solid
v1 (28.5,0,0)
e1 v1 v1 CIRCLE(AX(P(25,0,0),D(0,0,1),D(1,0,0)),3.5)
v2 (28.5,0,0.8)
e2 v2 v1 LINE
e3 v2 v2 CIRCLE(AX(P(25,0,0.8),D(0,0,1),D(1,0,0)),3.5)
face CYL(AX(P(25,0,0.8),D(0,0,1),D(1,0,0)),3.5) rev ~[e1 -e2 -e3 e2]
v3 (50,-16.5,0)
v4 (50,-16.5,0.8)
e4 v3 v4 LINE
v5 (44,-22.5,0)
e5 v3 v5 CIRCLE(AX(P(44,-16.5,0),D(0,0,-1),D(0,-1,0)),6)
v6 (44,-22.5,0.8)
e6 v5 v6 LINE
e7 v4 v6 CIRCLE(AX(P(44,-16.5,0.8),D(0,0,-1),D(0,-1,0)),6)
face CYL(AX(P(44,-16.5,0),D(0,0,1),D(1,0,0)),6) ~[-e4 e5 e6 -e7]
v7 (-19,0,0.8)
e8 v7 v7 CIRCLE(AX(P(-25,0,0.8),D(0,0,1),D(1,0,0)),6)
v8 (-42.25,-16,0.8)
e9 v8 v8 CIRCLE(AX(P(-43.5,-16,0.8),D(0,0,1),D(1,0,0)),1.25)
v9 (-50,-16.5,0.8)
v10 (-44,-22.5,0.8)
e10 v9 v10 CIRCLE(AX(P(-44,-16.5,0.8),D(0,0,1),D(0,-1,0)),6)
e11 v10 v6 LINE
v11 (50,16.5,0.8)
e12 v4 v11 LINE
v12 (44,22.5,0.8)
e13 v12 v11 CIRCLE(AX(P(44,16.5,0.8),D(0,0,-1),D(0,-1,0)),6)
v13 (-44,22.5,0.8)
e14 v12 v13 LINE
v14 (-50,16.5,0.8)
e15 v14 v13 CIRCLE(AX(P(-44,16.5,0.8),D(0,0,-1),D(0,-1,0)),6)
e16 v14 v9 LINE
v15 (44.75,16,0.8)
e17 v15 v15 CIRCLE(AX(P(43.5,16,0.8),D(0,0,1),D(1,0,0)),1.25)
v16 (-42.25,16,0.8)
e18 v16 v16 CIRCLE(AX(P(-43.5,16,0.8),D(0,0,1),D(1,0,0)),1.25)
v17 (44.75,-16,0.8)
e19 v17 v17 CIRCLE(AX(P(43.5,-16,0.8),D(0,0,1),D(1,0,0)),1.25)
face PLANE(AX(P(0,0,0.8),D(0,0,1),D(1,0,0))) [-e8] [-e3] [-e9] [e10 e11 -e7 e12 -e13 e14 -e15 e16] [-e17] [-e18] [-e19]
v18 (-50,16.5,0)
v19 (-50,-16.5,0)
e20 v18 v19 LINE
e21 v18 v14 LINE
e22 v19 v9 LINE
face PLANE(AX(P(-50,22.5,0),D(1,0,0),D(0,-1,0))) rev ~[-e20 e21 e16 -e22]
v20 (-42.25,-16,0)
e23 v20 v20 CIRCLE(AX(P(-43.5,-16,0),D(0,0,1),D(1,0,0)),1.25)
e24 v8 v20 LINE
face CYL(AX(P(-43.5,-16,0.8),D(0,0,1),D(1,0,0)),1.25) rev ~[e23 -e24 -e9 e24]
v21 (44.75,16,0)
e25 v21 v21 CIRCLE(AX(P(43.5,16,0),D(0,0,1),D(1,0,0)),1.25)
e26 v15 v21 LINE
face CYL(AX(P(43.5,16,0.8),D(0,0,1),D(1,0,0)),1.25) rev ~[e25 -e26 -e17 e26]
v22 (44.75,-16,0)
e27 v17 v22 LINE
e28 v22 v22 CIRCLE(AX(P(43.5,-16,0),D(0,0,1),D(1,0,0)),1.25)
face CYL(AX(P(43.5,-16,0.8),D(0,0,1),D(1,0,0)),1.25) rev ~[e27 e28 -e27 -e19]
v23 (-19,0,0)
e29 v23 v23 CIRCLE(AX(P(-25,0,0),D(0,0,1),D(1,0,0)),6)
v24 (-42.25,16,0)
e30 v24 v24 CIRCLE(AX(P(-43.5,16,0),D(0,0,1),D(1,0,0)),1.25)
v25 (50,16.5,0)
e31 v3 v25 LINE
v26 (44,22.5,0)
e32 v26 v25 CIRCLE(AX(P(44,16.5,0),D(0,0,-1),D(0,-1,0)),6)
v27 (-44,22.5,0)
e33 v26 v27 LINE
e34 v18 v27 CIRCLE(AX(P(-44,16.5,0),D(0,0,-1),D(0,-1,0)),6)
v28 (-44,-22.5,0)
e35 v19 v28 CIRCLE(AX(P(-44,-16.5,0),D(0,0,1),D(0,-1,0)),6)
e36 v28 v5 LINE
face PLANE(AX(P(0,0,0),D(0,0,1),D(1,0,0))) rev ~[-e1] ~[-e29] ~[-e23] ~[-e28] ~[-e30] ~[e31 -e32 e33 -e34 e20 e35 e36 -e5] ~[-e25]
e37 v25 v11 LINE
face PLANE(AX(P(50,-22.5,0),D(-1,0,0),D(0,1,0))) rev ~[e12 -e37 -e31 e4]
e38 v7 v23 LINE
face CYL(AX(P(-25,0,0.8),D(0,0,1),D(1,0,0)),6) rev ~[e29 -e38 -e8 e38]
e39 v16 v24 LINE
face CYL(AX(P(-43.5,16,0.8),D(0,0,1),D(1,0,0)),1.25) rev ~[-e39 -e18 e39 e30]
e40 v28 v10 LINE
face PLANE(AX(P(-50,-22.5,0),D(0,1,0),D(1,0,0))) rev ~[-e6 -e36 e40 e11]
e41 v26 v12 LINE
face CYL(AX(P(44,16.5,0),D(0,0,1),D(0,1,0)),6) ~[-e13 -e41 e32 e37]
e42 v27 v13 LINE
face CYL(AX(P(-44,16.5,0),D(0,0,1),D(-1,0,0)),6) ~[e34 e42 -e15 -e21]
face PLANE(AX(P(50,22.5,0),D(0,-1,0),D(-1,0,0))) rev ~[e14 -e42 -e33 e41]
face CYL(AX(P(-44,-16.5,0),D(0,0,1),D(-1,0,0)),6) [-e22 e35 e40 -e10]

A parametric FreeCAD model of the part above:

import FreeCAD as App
import Part
import Sketcher

V = App.Vector


def edges_at(feature, points):
    """Names of the edges that pass closest to the given points."""
    edges = feature.Shape.Edges
    near = lambda p: min(range(len(edges)), key=lambda i: edges[i].distToShape(Part.Vertex(*p))[0])
    return sorted({f"Edge{near(p) + 1}" for p in points})

doc = App.newDocument("Part")
body = doc.addObject("PartDesign::Body", "Body")

# Sketch on XY plane
sketch1 = body.newObject("Sketcher::SketchObject", "Sketch")
sketch1.AttachmentSupport = (doc.getObject("XY_Plane"), [""])
sketch1.MapMode = "FlatFace"
sketch1.addGeometry([
    Part.LineSegment(V(-50, 22, 0), V(-50, -22, 0)),
    Part.LineSegment(V(-50, -22, 0), V(50, -22, 0)),
    Part.LineSegment(V(50, -22, 0), V(50, 22, 0)),
    Part.LineSegment(V(50, 22, 0), V(-50, 22, 0)),
], False)
sketch1.addConstraint([
    Sketcher.Constraint("Coincident", 0, 2, 1, 1),
    Sketcher.Constraint("Coincident", 1, 2, 2, 1),
    Sketcher.Constraint("Coincident", 2, 2, 3, 1),
    Sketcher.Constraint("Coincident", 3, 2, 0, 1),
    Sketcher.Constraint("Vertical", 0),
    Sketcher.Constraint("Horizontal", 1),
    Sketcher.Constraint("Vertical", 2),
    Sketcher.Constraint("Horizontal", 3),
    Sketcher.Constraint("Symmetric", 0, 2, 2, 2, -1, 1),
    Sketcher.Constraint("DistanceX", 1, 1, 1, 2, 100.0),
    Sketcher.Constraint("DistanceY", 0, 2, 0, 1, 45.0),
])
pad1 = body.newObject("PartDesign::Pad", "Pad")
pad1.Profile = sketch1
pad1.Length = 0.8
doc.recompute()

fillet = body.newObject("PartDesign::Fillet", "Fillet")
fillet.Base = (pad1, edges_at(pad1, [
    (-50, 22.5, 0.4),
    (50, 22.5, 0.4),
    (50, -22.5, 0.4),
    (-50, -22.5, 0.4),
]))
fillet.Radius = 6

# Sketch on XY plane
sketch2 = body.newObject("Sketcher::SketchObject", "Sketch001")
sketch2.AttachmentSupport = (doc.getObject("XY_Plane"), [""])
sketch2.MapMode = "FlatFace"
sketch2.AttachmentOffset = App.Placement(V(0, 0, 0.8), App.Rotation())
sketch2.addGeometry([
    Part.Circle(V(-25, 0, 0), V(0, 0, 1), 6),
    Part.Circle(V(25, 0, 0), V(0, 0, 1), 3.5),
], False)
sketch2.addConstraint([
    Sketcher.Constraint("Symmetric", 0, 3, 1, 3, -1, 1),
    Sketcher.Constraint("PointOnObject", 0, 3, -1),
    Sketcher.Constraint("Diameter", 0, 12.0),
    Sketcher.Constraint("Diameter", 1, 7.0),
    Sketcher.Constraint("DistanceX", 0, 3, -1, 1, 25.0),
])
pocket1 = body.newObject("PartDesign::Pocket", "Pocket")
pocket1.Profile = sketch2
pocket1.Type = "ThroughAll"

# Sketch on XY plane
sketch3 = body.newObject("Sketcher::SketchObject", "Sketch002")
sketch3.AttachmentSupport = (doc.getObject("XY_Plane"), [""])
sketch3.MapMode = "FlatFace"
sketch3.AttachmentOffset = App.Placement(V(0, 0, 0.8), App.Rotation())
sketch3.addGeometry([
    Part.Circle(V(-43.5, 16, 0), V(0, 0, 1), 1.2),
    Part.Circle(V(43.5, 16, 0), V(0, 0, 1), 1.2),
    Part.Circle(V(43.5, -16, 0), V(0, 0, 1), 1.2),
    Part.Circle(V(-43.5, -16, 0), V(0, 0, 1), 1.2),
], False)
sketch3.addConstraint([
    Sketcher.Constraint("Equal", 0, 1),
    Sketcher.Constraint("Equal", 1, 2),
    Sketcher.Constraint("Equal", 2, 3),
    Sketcher.Constraint("Symmetric", 0, 3, 2, 3, -1, 1),
    Sketcher.Constraint("Symmetric", 1, 3, 3, 3, -1, 1),
    Sketcher.Constraint("Symmetric", 0, 3, 1, 3, -2),
    Sketcher.Constraint("Diameter", 0, 2.5),
    Sketcher.Constraint("DistanceY", -1, 1, 0, 3, 16.0),
    Sketcher.Constraint("DistanceX", 0, 3, 1, 3, 87.0),
])
pocket2 = body.newObject("PartDesign::Pocket", "Pocket001")
pocket2.Profile = sketch3
pocket2.Type = "ThroughAll"

doc.recompute()
